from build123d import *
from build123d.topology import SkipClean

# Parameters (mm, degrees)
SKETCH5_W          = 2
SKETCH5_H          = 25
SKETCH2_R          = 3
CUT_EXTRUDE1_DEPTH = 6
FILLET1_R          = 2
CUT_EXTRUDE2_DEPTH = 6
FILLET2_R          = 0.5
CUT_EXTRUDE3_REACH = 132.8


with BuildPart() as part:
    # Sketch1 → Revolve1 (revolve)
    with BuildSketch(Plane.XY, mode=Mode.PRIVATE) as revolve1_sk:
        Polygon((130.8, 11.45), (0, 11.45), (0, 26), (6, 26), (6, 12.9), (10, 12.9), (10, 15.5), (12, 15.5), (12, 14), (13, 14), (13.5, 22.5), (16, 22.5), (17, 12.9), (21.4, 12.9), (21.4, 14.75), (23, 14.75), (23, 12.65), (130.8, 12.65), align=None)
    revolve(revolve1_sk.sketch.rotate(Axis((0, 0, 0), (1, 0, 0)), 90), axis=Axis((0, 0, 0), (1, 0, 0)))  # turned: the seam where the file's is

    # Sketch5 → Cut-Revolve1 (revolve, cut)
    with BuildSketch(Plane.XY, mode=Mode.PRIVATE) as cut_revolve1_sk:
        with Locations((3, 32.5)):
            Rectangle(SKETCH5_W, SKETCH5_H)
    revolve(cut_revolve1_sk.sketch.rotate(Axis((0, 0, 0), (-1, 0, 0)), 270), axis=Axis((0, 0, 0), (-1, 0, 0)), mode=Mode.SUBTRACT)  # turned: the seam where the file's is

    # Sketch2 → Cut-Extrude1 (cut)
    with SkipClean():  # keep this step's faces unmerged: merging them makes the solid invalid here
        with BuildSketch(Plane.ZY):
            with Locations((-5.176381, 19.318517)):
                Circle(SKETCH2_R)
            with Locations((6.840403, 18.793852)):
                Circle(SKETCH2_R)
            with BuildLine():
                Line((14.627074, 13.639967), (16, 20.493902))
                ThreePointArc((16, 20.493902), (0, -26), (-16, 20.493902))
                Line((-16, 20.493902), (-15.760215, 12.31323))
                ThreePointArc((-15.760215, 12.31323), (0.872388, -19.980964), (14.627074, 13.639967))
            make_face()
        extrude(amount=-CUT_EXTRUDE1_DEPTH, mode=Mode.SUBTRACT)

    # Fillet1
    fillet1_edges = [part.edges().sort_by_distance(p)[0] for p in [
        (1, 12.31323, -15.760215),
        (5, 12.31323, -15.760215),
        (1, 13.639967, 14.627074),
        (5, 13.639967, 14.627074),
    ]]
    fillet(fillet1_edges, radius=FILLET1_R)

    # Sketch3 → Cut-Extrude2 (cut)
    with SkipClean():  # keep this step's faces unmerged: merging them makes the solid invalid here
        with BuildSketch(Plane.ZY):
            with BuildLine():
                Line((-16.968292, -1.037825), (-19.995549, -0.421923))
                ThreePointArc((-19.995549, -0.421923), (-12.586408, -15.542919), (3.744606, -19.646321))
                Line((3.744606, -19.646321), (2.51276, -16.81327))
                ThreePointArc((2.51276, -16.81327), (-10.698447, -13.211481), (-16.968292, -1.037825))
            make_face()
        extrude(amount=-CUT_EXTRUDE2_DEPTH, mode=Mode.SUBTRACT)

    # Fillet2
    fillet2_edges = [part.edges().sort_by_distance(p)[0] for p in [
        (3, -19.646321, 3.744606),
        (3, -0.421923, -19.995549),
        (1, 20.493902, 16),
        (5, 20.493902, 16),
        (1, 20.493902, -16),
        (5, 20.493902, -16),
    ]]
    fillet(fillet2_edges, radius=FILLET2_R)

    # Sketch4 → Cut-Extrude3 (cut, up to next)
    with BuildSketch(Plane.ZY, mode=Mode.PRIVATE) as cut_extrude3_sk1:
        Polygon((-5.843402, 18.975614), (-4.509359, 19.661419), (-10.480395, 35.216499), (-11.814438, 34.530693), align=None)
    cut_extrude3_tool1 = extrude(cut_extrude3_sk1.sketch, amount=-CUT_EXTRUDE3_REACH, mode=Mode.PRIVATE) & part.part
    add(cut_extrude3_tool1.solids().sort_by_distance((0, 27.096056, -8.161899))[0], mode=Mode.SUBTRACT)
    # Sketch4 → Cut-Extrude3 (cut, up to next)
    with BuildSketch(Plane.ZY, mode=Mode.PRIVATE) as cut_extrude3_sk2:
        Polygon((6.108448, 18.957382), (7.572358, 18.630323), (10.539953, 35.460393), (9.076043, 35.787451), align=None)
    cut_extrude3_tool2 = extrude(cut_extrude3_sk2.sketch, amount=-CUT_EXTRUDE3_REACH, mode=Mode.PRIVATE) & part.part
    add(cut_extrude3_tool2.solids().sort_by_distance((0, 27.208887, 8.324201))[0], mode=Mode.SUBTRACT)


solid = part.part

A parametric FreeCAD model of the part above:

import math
import FreeCAD as App
import Part
import Sketcher
Q = App.Units.Quantity


def edges_at(feature, points):
    """Names of the edges that pass closest to the given points."""
    edges = feature.Shape.Edges
    near = lambda p: min(range(len(edges)), key=lambda i: edges[i].distToShape(Part.Vertex(*p))[0])
    return sorted({f"Edge{near(p) + 1}" for p in points})

doc = App.newDocument("Part")
body = doc.addObject("PartDesign::Body", "Body")

# Sketch on XY plane
sketch1 = doc.addObject("Sketcher::SketchObject", "Sketch")
body.addObject(sketch1)
sketch1.AttachmentSupport = (doc.XY_Plane, [""])
sketch1.MapMode = "FlatFace"
sketch1.addGeometry(Part.LineSegment(App.Vector(0, 11.45, 0), App.Vector(130.8, 11.45, 0)), False)
sketch1.addGeometry(Part.LineSegment(App.Vector(130.8, 11.45, 0), App.Vector(130.8, 12.65, 0)), False)
sketch1.addGeometry(Part.LineSegment(App.Vector(130.8, 12.65, 0), App.Vector(23, 12.65, 0)), False)
sketch1.addGeometry(Part.LineSegment(App.Vector(23, 12.65, 0), App.Vector(23, 14.75, 0)), False)
sketch1.addGeometry(Part.LineSegment(App.Vector(23, 14.75, 0), App.Vector(21.4, 14.75, 0)), False)
sketch1.addGeometry(Part.LineSegment(App.Vector(21.4, 14.75, 0), App.Vector(21.4, 12.9, 0)), False)
sketch1.addGeometry(Part.LineSegment(App.Vector(21.4, 12.9, 0), App.Vector(17, 12.9, 0)), False)
sketch1.addGeometry(Part.LineSegment(App.Vector(17, 12.9, 0), App.Vector(16, 22.5, 0)), False)
sketch1.addGeometry(Part.LineSegment(App.Vector(16, 22.5, 0), App.Vector(13.5, 22.5, 0)), False)
sketch1.addGeometry(Part.LineSegment(App.Vector(13.5, 22.5, 0), App.Vector(13, 14, 0)), False)
sketch1.addGeometry(Part.LineSegment(App.Vector(13, 14, 0), App.Vector(12, 14, 0)), False)
sketch1.addGeometry(Part.LineSegment(App.Vector(12, 14, 0), App.Vector(12, 15.5, 0)), False)
sketch1.addGeometry(Part.LineSegment(App.Vector(12, 15.5, 0), App.Vector(10, 15.5, 0)), False)
sketch1.addGeometry(Part.LineSegment(App.Vector(10, 15.5, 0), App.Vector(10, 12.9, 0)), False)
sketch1.addGeometry(Part.LineSegment(App.Vector(10, 12.9, 0), App.Vector(6, 12.9, 0)), False)
sketch1.addGeometry(Part.LineSegment(App.Vector(6, 12.9, 0), App.Vector(6, 26, 0)), False)
sketch1.addGeometry(Part.LineSegment(App.Vector(6, 26, 0), App.Vector(0, 26, 0)), False)
sketch1.addGeometry(Part.LineSegment(App.Vector(0, 26, 0), App.Vector(0, 11.45, 0)), False)
sketch1.addConstraint(Sketcher.Constraint("Coincident", 0, 2, 1, 1))
sketch1.addConstraint(Sketcher.Constraint("Coincident", 1, 2, 2, 1))
sketch1.addConstraint(Sketcher.Constraint("Coincident", 2, 2, 3, 1))
sketch1.addConstraint(Sketcher.Constraint("Coincident", 3, 2, 4, 1))
sketch1.addConstraint(Sketcher.Constraint("Coincident", 4, 2, 5, 1))
sketch1.addConstraint(Sketcher.Constraint("Coincident", 5, 2, 6, 1))
sketch1.addConstraint(Sketcher.Constraint("Coincident", 6, 2, 7, 1))
sketch1.addConstraint(Sketcher.Constraint("Coincident", 7, 2, 8, 1))
sketch1.addConstraint(Sketcher.Constraint("Coincident", 8, 2, 9, 1))
sketch1.addConstraint(Sketcher.Constraint("Coincident", 9, 2, 10, 1))
sketch1.addConstraint(Sketcher.Constraint("Coincident", 10, 2, 11, 1))
sketch1.addConstraint(Sketcher.Constraint("Coincident", 11, 2, 12, 1))
sketch1.addConstraint(Sketcher.Constraint("Coincident", 12, 2, 13, 1))
sketch1.addConstraint(Sketcher.Constraint("Coincident", 13, 2, 14, 1))
sketch1.addConstraint(Sketcher.Constraint("Coincident", 14, 2, 15, 1))
sketch1.addConstraint(Sketcher.Constraint("Coincident", 15, 2, 16, 1))
sketch1.addConstraint(Sketcher.Constraint("Coincident", 16, 2, 17, 1))
sketch1.addConstraint(Sketcher.Constraint("Coincident", 17, 2, 0, 1))
sketch1.addConstraint(Sketcher.Constraint("Horizontal", 0))
sketch1.addConstraint(Sketcher.Constraint("Vertical", 1))
sketch1.addConstraint(Sketcher.Constraint("Horizontal", 2))
sketch1.addConstraint(Sketcher.Constraint("Vertical", 3))
sketch1.addConstraint(Sketcher.Constraint("Horizontal", 4))
sketch1.addConstraint(Sketcher.Constraint("Vertical", 5))
sketch1.addConstraint(Sketcher.Constraint("Horizontal", 6))
sketch1.addConstraint(Sketcher.Constraint("Horizontal", 8))
sketch1.addConstraint(Sketcher.Constraint("Horizontal", 10))
sketch1.addConstraint(Sketcher.Constraint("Vertical", 11))
sketch1.addConstraint(Sketcher.Constraint("Horizontal", 12))
sketch1.addConstraint(Sketcher.Constraint("Vertical", 13))
sketch1.addConstraint(Sketcher.Constraint("Horizontal", 14))
sketch1.addConstraint(Sketcher.Constraint("Vertical", 15))
sketch1.addConstraint(Sketcher.Constraint("Horizontal", 16))
sketch1.addConstraint(Sketcher.Constraint("Vertical", 17))
sketch1.addConstraint(Sketcher.Constraint("PointOnObject", 16, 2, -2))
sketch1.addConstraint(Sketcher.Constraint("Horizontal", 6, 2, 13, 2))
sketch1.addConstraint(Sketcher.Constraint("DistanceX", 10, 2, 10, 1, 1.0))
sketch1.addConstraint(Sketcher.Constraint("DistanceX", 12, 2, 12, 1, 2.0))
sketch1.addConstraint(Sketcher.Constraint("DistanceX", 14, 2, 14, 1, 4.0))
sketch1.addConstraint(Sketcher.Constraint("DistanceX", 16, 2, 16, 1, 6.0))
sketch1.addConstraint(Sketcher.Constraint("DistanceX", 0, 1, 0, 2, 130.8))
sketch1.addConstraint(Sketcher.Constraint("DistanceX", 2, 2, 2, 1, 107.8))
sketch1.addConstraint(Sketcher.Constraint("DistanceX", 4, 2, 4, 1, 1.6))
sketch1.addConstraint(Sketcher.Constraint("DistanceX", 6, 2, 6, 1, 4.4))
sketch1.addConstraint(Sketcher.Constraint("DistanceX", 8, 2, 8, 1, 2.5))
sketch1.addConstraint(Sketcher.Constraint("DistanceY", 1, 1, 1, 2, 1.2))
sketch1.addConstraint(Sketcher.Constraint("DistanceY", 3, 1, 3, 2, 2.1))
sketch1.addConstraint(Sketcher.Constraint("DistanceY", 11, 1, 11, 2, 1.5))
sketch1.addConstraint(Sketcher.Constraint("DistanceY", 13, 2, 13, 1, 2.6))
sketch1.addConstraint(Sketcher.Constraint("DistanceY", 15, 1, 15, 2, 13.1))
sketch1.addConstraint(Sketcher.Constraint("DistanceX", -1, 1, 7, 2, 16.0))
sketch1.addConstraint(Sketcher.Constraint("DistanceY", -1, 1, 9, 2, 14.0))
sketch1.addConstraint(Sketcher.Constraint("DistanceY", 11, 2, 8, 2, 7.0))
sketch1.addConstraint(Sketcher.Constraint("DistanceY", 5, 2, 5, 1, 1.85))
revolution = doc.addObject("PartDesign::Revolution", "Revolution")
body.addObject(revolution)
revolution.Profile = sketch1
revolution.ReferenceAxis = (sketch1, ["H_Axis"])
revolution.Angle = 360

# Sketch on XY plane
sketch2 = doc.addObject("Sketcher::SketchObject", "Sketch001")
body.addObject(sketch2)
sketch2.AttachmentSupport = (doc.XY_Plane, [""])
sketch2.MapMode = "FlatFace"
sketch2.addGeometry(Part.LineSegment(App.Vector(2, 45, 0), App.Vector(2, 20, 0)), False)
sketch2.addGeometry(Part.LineSegment(App.Vector(2, 20, 0), App.Vector(4, 20, 0)), False)
sketch2.addGeometry(Part.LineSegment(App.Vector(4, 20, 0), App.Vector(4, 45, 0)), False)
sketch2.addGeometry(Part.LineSegment(App.Vector(4, 45, 0), App.Vector(2, 45, 0)), False)
sketch2.addConstraint(Sketcher.Constraint("Coincident", 0, 2, 1, 1))
sketch2.addConstraint(Sketcher.Constraint("Coincident", 1, 2, 2, 1))
sketch2.addConstraint(Sketcher.Constraint("Coincident", 2, 2, 3, 1))
sketch2.addConstraint(Sketcher.Constraint("Coincident", 3, 2, 0, 1))
sketch2.addConstraint(Sketcher.Constraint("Vertical", 0))
sketch2.addConstraint(Sketcher.Constraint("Horizontal", 1))
sketch2.addConstraint(Sketcher.Constraint("Vertical", 2))
sketch2.addConstraint(Sketcher.Constraint("Horizontal", 3))
sketch2.addConstraint(Sketcher.Constraint("DistanceX", 1, 1, 1, 2, 2.0))
sketch2.addConstraint(Sketcher.Constraint("DistanceY", 0, 2, 0, 1, 25.0))
sketch2.addConstraint(Sketcher.Constraint("DistanceX", -1, 1, 0, 2, 2.0))
sketch2.addConstraint(Sketcher.Constraint("DistanceY", -1, 1, 0, 2, 20.0))
groove = doc.addObject("PartDesign::Groove", "Groove")
body.addObject(groove)
groove.Profile = sketch2
groove.ReferenceAxis = (sketch2, ["H_Axis"])
groove.Angle = 360

# Sketch on YZ plane
sketch3 = doc.addObject("Sketcher::SketchObject", "Sketch002")
body.addObject(sketch3)
sketch3.AttachmentSupport = (doc.YZ_Plane, [""])
sketch3.MapMode = "FlatFace"
sketch3.addGeometry(Part.Circle(App.Vector(19.318517, -5.176381, 0), App.Vector(0, 0, 1), 3), False)
sketch3.addGeometry(Part.Circle(App.Vector(18.793852, 6.840403, 0), App.Vector(0, 0, 1), 3), False)
sketch3.addGeometry(Part.LineSegment(App.Vector(20.493902, 16, 0), App.Vector(13.639967, 14.627074, 0)), False)
sketch3.addGeometry(Part.ArcOfCircle(Part.Circle(App.Vector(0, 0, 0), App.Vector(0, 0, 1), 20), math.radians(47.000001), math.radians(308.000001)), False)
sketch3.addGeometry(Part.LineSegment(App.Vector(12.31323, -15.760215, 0), App.Vector(20.493902, -16, 0)), False)
sketch3.addGeometry(Part.ArcOfCircle(Part.Circle(App.Vector(0, 0, 0), App.Vector(0, 0, 1), 26), math.radians(37.979872), math.radians(322.020128)), False)
sketch3.addConstraint(Sketcher.Constraint("Coincident", 2, 2, 3, 1))
sketch3.addConstraint(Sketcher.Constraint("Coincident", 3, 2, 4, 1))
sketch3.addConstraint(Sketcher.Constraint("Coincident", 4, 2, 5, 2))
sketch3.addConstraint(Sketcher.Constraint("Coincident", 5, 1, 2, 1))
sketch3.addConstraint(Sketcher.Constraint("Coincident", 3, 3, -1, 1))
sketch3.addConstraint(Sketcher.Constraint("Coincident", 5, 3, -1, 1))
sketch3.addConstraint(Sketcher.Constraint("Equal", 0, 1))
sketch3.addConstraint(Sketcher.Constraint("Vertical", 4, 2, 5, 1))
sketch3.addConstraint(Sketcher.Constraint("Diameter", 0, 6.0))
sketch3.addConstraint(Sketcher.Constraint("Radius", 3, 20.0))
sketch3.addConstraint(Sketcher.Constraint("Radius", 5, 26.0))
sketch3.addConstraint(Sketcher.Constraint("DistanceY", 4, 2, -1, 1, 16.0))
sketch3.addConstraint(Sketcher.Constraint("Distance", 2, 6.990089))
sketch3.addConstraint(Sketcher.Constraint("DistanceY", 0, 3, -1, 1, 5.176381))
sketch3.addConstraint(Sketcher.Constraint("DistanceX", -1, 1, 3, 2, 12.31323))
sketch3.addConstraint(Sketcher.Constraint("DistanceX", 3, 3, 1, 3, 18.793852))
sketch3.addConstraint(Sketcher.Constraint("DistanceY", 1, 3, 2, 2, 7.786671))
sketch3.addConstraint(Sketcher.Constraint("DistanceX", 2, 2, 0, 3, 5.67855))
pocket1 = doc.addObject("PartDesign::Pocket", "Pocket")
body.addObject(pocket1)
pocket1.Profile = sketch3
pocket1.Length = 6
pocket1.Reversed = True
doc.recompute()

fillet = doc.addObject("PartDesign::Fillet", "Fillet")
body.addObject(fillet)
fillet.Base = (pocket1, edges_at(pocket1, [
    (1, 12.313, -15.76),
    (5, 12.313, -15.76),
    (1, 13.64, 14.627),
    (5, 13.64, 14.627),
]))
fillet.Radius = 2

# Sketch on YZ plane
sketch4 = doc.addObject("Sketcher::SketchObject", "Sketch003")
body.addObject(sketch4)
sketch4.AttachmentSupport = (doc.YZ_Plane, [""])
sketch4.MapMode = "FlatFace"
sketch4.addGeometry(Part.LineSegment(App.Vector(-1.037825, -16.968292, 0), App.Vector(-0.421923, -19.995549, 0)), False)
sketch4.addGeometry(Part.ArcOfCircle(Part.Circle(App.Vector(0, 0, 0), App.Vector(0, 0, 1), 20), math.radians(169.208809), math.radians(268.79119)), False)
sketch4.addGeometry(Part.LineSegment(App.Vector(-19.646321, 3.744606, 0), App.Vector(-16.81327, 2.51276, 0)), False)
sketch4.addGeometry(Part.ArcOfCircle(Part.Circle(App.Vector(0.000001, 0.000001, 0), App.Vector(0, 0, 1), 17.000001), math.radians(171.500003), math.radians(266.499997)), False)
sketch4.addConstraint(Sketcher.Constraint("Coincident", 0, 2, 1, 2))
sketch4.addConstraint(Sketcher.Constraint("Coincident", 1, 1, 2, 1))
sketch4.addConstraint(Sketcher.Constraint("Coincident", 2, 2, 3, 1))
sketch4.addConstraint(Sketcher.Constraint("Coincident", 3, 2, 0, 1))
sketch4.addConstraint(Sketcher.Constraint("Coincident", 1, 3, -1, 1))
sketch4.addConstraint(Sketcher.Constraint("Coincident", 3, 3, -1, 1))
sketch4.addConstraint(Sketcher.Constraint("Equal", 0, 2))
sketch4.addConstraint(Sketcher.Constraint("Radius", 1, 20.0))
sketch4.addConstraint(Sketcher.Constraint("Radius", 3, 17.000001))
sketch4.addConstraint(Sketcher.Constraint("Angle", 0, Q("-78.500007 deg")))
sketch4.addConstraint(Sketcher.Constraint("Angle", 2, Q("-23.500006 deg")))
sketch4.addConstraint(Sketcher.Constraint("DistanceX", 1, 1, 0, 2, 19.224398))
pocket2 = doc.addObject("PartDesign::Pocket", "Pocket001")
body.addObject(pocket2)
pocket2.Profile = sketch4
pocket2.Length = 6
pocket2.Reversed = True
doc.recompute()

fillet2 = doc.addObject("PartDesign::Fillet", "Fillet001")
body.addObject(fillet2)
fillet2.Base = (pocket2, edges_at(pocket2, [
    (3, -19.646, 3.745),
    (3, -0.422, -19.996),
    (1, 20.494, 16),
    (5, 20.494, 16),
    (1, 20.494, -16),
    (5, 20.494, -16),
]))
fillet2.Radius = 0.5

# Sketch on YZ plane
sketch5 = doc.addObject("Sketcher::SketchObject", "Sketch004")
body.addObject(sketch5)
sketch5.AttachmentSupport = (doc.YZ_Plane, [""])
sketch5.MapMode = "FlatFace"
sketch5.addGeometry(Part.LineSegment(App.Vector(18.975614, -5.843402, 0), App.Vector(19.661419, -4.509359, 0)), False)
sketch5.addGeometry(Part.LineSegment(App.Vector(19.661419, -4.509359, 0), App.Vector(35.216499, -10.480395, 0)), False)
sketch5.addGeometry(Part.LineSegment(App.Vector(35.216499, -10.480395, 0), App.Vector(34.530693, -11.814438, 0)), False)
sketch5.addGeometry(Part.LineSegment(App.Vector(34.530693, -11.814438, 0), App.Vector(18.975614, -5.843402, 0)), False)
sketch5.addConstraint(Sketcher.Constraint("Coincident", 0, 2, 1, 1))
sketch5.addConstraint(Sketcher.Constraint("Coincident", 1, 2, 2, 1))
sketch5.addConstraint(Sketcher.Constraint("Coincident", 2, 2, 3, 1))
sketch5.addConstraint(Sketcher.Constraint("Coincident", 3, 2, 0, 1))
sketch5.addConstraint(Sketcher.Constraint("Parallel", 0, 2))
sketch5.addConstraint(Sketcher.Constraint("Parallel", 1, 3))
sketch5.addConstraint(Sketcher.Constraint("Angle", 1, Q("-21.000001 deg")))
sketch5.addConstraint(Sketcher.Constraint("Distance", 0, 1.5))
sketch5.addConstraint(Sketcher.Constraint("DistanceX", -1, 1, 1, 2, 35.216499))
sketch5.addConstraint(Sketcher.Constraint("DistanceX", -1, 1, 0, 2, 19.661419))
sketch5.addConstraint(Sketcher.Constraint("DistanceY", 0, 2, -1, 1, 4.509359))
sketch5.addConstraint(Sketcher.Constraint("DistanceY", 2, 2, -1, 1, 11.814438))
pocket3 = doc.addObject("PartDesign::Pocket", "Pocket002")
body.addObject(pocket3)
pocket3.Profile = sketch5
pocket3.Length = 2
pocket3.Reversed = True

# Sketch on YZ plane
sketch6 = doc.addObject("Sketcher::SketchObject", "Sketch005")
body.addObject(sketch6)
sketch6.AttachmentSupport = (doc.YZ_Plane, [""])
sketch6.MapMode = "FlatFace"
sketch6.addGeometry(Part.LineSegment(App.Vector(18.957382, 6.108448, 0), App.Vector(18.630323, 7.572358, 0)), False)
sketch6.addGeometry(Part.LineSegment(App.Vector(18.630323, 7.572358, 0), App.Vector(35.460393, 10.539953, 0)), False)
sketch6.addGeometry(Part.LineSegment(App.Vector(35.460393, 10.539953, 0), App.Vector(35.787451, 9.076043, 0)), False)
sketch6.addGeometry(Part.LineSegment(App.Vector(35.787451, 9.076043, 0), App.Vector(18.957382, 6.108448, 0)), False)
sketch6.addConstraint(Sketcher.Constraint("Coincident", 0, 2, 1, 1))
sketch6.addConstraint(Sketcher.Constraint("Coincident", 1, 2, 2, 1))
sketch6.addConstraint(Sketcher.Constraint("Coincident", 2, 2, 3, 1))
sketch6.addConstraint(Sketcher.Constraint("Coincident", 3, 2, 0, 1))
sketch6.addConstraint(Sketcher.Constraint("Parallel", 0, 2))
sketch6.addConstraint(Sketcher.Constraint("Parallel", 1, 3))
sketch6.addConstraint(Sketcher.Constraint("Angle", 1, Q("9.999999 deg")))
sketch6.addConstraint(Sketcher.Constraint("Distance", 0, 1.5))
sketch6.addConstraint(Sketcher.Constraint("Distance", 1, 17.089701))
sketch6.addConstraint(Sketcher.Constraint("DistanceY", -1, 1, 0, 2, 7.572358))
sketch6.addConstraint(Sketcher.Constraint("DistanceX", -1, 1, 2, 2, 35.787451))
sketch6.addConstraint(Sketcher.Constraint("DistanceY", 2, 2, 1, 2, 1.46391))
pocket4 = doc.addObject("PartDesign::Pocket", "Pocket003")
body.addObject(pocket4)
pocket4.Profile = sketch6
pocket4.Length = 2
pocket4.Reversed = True

doc.recompute()
